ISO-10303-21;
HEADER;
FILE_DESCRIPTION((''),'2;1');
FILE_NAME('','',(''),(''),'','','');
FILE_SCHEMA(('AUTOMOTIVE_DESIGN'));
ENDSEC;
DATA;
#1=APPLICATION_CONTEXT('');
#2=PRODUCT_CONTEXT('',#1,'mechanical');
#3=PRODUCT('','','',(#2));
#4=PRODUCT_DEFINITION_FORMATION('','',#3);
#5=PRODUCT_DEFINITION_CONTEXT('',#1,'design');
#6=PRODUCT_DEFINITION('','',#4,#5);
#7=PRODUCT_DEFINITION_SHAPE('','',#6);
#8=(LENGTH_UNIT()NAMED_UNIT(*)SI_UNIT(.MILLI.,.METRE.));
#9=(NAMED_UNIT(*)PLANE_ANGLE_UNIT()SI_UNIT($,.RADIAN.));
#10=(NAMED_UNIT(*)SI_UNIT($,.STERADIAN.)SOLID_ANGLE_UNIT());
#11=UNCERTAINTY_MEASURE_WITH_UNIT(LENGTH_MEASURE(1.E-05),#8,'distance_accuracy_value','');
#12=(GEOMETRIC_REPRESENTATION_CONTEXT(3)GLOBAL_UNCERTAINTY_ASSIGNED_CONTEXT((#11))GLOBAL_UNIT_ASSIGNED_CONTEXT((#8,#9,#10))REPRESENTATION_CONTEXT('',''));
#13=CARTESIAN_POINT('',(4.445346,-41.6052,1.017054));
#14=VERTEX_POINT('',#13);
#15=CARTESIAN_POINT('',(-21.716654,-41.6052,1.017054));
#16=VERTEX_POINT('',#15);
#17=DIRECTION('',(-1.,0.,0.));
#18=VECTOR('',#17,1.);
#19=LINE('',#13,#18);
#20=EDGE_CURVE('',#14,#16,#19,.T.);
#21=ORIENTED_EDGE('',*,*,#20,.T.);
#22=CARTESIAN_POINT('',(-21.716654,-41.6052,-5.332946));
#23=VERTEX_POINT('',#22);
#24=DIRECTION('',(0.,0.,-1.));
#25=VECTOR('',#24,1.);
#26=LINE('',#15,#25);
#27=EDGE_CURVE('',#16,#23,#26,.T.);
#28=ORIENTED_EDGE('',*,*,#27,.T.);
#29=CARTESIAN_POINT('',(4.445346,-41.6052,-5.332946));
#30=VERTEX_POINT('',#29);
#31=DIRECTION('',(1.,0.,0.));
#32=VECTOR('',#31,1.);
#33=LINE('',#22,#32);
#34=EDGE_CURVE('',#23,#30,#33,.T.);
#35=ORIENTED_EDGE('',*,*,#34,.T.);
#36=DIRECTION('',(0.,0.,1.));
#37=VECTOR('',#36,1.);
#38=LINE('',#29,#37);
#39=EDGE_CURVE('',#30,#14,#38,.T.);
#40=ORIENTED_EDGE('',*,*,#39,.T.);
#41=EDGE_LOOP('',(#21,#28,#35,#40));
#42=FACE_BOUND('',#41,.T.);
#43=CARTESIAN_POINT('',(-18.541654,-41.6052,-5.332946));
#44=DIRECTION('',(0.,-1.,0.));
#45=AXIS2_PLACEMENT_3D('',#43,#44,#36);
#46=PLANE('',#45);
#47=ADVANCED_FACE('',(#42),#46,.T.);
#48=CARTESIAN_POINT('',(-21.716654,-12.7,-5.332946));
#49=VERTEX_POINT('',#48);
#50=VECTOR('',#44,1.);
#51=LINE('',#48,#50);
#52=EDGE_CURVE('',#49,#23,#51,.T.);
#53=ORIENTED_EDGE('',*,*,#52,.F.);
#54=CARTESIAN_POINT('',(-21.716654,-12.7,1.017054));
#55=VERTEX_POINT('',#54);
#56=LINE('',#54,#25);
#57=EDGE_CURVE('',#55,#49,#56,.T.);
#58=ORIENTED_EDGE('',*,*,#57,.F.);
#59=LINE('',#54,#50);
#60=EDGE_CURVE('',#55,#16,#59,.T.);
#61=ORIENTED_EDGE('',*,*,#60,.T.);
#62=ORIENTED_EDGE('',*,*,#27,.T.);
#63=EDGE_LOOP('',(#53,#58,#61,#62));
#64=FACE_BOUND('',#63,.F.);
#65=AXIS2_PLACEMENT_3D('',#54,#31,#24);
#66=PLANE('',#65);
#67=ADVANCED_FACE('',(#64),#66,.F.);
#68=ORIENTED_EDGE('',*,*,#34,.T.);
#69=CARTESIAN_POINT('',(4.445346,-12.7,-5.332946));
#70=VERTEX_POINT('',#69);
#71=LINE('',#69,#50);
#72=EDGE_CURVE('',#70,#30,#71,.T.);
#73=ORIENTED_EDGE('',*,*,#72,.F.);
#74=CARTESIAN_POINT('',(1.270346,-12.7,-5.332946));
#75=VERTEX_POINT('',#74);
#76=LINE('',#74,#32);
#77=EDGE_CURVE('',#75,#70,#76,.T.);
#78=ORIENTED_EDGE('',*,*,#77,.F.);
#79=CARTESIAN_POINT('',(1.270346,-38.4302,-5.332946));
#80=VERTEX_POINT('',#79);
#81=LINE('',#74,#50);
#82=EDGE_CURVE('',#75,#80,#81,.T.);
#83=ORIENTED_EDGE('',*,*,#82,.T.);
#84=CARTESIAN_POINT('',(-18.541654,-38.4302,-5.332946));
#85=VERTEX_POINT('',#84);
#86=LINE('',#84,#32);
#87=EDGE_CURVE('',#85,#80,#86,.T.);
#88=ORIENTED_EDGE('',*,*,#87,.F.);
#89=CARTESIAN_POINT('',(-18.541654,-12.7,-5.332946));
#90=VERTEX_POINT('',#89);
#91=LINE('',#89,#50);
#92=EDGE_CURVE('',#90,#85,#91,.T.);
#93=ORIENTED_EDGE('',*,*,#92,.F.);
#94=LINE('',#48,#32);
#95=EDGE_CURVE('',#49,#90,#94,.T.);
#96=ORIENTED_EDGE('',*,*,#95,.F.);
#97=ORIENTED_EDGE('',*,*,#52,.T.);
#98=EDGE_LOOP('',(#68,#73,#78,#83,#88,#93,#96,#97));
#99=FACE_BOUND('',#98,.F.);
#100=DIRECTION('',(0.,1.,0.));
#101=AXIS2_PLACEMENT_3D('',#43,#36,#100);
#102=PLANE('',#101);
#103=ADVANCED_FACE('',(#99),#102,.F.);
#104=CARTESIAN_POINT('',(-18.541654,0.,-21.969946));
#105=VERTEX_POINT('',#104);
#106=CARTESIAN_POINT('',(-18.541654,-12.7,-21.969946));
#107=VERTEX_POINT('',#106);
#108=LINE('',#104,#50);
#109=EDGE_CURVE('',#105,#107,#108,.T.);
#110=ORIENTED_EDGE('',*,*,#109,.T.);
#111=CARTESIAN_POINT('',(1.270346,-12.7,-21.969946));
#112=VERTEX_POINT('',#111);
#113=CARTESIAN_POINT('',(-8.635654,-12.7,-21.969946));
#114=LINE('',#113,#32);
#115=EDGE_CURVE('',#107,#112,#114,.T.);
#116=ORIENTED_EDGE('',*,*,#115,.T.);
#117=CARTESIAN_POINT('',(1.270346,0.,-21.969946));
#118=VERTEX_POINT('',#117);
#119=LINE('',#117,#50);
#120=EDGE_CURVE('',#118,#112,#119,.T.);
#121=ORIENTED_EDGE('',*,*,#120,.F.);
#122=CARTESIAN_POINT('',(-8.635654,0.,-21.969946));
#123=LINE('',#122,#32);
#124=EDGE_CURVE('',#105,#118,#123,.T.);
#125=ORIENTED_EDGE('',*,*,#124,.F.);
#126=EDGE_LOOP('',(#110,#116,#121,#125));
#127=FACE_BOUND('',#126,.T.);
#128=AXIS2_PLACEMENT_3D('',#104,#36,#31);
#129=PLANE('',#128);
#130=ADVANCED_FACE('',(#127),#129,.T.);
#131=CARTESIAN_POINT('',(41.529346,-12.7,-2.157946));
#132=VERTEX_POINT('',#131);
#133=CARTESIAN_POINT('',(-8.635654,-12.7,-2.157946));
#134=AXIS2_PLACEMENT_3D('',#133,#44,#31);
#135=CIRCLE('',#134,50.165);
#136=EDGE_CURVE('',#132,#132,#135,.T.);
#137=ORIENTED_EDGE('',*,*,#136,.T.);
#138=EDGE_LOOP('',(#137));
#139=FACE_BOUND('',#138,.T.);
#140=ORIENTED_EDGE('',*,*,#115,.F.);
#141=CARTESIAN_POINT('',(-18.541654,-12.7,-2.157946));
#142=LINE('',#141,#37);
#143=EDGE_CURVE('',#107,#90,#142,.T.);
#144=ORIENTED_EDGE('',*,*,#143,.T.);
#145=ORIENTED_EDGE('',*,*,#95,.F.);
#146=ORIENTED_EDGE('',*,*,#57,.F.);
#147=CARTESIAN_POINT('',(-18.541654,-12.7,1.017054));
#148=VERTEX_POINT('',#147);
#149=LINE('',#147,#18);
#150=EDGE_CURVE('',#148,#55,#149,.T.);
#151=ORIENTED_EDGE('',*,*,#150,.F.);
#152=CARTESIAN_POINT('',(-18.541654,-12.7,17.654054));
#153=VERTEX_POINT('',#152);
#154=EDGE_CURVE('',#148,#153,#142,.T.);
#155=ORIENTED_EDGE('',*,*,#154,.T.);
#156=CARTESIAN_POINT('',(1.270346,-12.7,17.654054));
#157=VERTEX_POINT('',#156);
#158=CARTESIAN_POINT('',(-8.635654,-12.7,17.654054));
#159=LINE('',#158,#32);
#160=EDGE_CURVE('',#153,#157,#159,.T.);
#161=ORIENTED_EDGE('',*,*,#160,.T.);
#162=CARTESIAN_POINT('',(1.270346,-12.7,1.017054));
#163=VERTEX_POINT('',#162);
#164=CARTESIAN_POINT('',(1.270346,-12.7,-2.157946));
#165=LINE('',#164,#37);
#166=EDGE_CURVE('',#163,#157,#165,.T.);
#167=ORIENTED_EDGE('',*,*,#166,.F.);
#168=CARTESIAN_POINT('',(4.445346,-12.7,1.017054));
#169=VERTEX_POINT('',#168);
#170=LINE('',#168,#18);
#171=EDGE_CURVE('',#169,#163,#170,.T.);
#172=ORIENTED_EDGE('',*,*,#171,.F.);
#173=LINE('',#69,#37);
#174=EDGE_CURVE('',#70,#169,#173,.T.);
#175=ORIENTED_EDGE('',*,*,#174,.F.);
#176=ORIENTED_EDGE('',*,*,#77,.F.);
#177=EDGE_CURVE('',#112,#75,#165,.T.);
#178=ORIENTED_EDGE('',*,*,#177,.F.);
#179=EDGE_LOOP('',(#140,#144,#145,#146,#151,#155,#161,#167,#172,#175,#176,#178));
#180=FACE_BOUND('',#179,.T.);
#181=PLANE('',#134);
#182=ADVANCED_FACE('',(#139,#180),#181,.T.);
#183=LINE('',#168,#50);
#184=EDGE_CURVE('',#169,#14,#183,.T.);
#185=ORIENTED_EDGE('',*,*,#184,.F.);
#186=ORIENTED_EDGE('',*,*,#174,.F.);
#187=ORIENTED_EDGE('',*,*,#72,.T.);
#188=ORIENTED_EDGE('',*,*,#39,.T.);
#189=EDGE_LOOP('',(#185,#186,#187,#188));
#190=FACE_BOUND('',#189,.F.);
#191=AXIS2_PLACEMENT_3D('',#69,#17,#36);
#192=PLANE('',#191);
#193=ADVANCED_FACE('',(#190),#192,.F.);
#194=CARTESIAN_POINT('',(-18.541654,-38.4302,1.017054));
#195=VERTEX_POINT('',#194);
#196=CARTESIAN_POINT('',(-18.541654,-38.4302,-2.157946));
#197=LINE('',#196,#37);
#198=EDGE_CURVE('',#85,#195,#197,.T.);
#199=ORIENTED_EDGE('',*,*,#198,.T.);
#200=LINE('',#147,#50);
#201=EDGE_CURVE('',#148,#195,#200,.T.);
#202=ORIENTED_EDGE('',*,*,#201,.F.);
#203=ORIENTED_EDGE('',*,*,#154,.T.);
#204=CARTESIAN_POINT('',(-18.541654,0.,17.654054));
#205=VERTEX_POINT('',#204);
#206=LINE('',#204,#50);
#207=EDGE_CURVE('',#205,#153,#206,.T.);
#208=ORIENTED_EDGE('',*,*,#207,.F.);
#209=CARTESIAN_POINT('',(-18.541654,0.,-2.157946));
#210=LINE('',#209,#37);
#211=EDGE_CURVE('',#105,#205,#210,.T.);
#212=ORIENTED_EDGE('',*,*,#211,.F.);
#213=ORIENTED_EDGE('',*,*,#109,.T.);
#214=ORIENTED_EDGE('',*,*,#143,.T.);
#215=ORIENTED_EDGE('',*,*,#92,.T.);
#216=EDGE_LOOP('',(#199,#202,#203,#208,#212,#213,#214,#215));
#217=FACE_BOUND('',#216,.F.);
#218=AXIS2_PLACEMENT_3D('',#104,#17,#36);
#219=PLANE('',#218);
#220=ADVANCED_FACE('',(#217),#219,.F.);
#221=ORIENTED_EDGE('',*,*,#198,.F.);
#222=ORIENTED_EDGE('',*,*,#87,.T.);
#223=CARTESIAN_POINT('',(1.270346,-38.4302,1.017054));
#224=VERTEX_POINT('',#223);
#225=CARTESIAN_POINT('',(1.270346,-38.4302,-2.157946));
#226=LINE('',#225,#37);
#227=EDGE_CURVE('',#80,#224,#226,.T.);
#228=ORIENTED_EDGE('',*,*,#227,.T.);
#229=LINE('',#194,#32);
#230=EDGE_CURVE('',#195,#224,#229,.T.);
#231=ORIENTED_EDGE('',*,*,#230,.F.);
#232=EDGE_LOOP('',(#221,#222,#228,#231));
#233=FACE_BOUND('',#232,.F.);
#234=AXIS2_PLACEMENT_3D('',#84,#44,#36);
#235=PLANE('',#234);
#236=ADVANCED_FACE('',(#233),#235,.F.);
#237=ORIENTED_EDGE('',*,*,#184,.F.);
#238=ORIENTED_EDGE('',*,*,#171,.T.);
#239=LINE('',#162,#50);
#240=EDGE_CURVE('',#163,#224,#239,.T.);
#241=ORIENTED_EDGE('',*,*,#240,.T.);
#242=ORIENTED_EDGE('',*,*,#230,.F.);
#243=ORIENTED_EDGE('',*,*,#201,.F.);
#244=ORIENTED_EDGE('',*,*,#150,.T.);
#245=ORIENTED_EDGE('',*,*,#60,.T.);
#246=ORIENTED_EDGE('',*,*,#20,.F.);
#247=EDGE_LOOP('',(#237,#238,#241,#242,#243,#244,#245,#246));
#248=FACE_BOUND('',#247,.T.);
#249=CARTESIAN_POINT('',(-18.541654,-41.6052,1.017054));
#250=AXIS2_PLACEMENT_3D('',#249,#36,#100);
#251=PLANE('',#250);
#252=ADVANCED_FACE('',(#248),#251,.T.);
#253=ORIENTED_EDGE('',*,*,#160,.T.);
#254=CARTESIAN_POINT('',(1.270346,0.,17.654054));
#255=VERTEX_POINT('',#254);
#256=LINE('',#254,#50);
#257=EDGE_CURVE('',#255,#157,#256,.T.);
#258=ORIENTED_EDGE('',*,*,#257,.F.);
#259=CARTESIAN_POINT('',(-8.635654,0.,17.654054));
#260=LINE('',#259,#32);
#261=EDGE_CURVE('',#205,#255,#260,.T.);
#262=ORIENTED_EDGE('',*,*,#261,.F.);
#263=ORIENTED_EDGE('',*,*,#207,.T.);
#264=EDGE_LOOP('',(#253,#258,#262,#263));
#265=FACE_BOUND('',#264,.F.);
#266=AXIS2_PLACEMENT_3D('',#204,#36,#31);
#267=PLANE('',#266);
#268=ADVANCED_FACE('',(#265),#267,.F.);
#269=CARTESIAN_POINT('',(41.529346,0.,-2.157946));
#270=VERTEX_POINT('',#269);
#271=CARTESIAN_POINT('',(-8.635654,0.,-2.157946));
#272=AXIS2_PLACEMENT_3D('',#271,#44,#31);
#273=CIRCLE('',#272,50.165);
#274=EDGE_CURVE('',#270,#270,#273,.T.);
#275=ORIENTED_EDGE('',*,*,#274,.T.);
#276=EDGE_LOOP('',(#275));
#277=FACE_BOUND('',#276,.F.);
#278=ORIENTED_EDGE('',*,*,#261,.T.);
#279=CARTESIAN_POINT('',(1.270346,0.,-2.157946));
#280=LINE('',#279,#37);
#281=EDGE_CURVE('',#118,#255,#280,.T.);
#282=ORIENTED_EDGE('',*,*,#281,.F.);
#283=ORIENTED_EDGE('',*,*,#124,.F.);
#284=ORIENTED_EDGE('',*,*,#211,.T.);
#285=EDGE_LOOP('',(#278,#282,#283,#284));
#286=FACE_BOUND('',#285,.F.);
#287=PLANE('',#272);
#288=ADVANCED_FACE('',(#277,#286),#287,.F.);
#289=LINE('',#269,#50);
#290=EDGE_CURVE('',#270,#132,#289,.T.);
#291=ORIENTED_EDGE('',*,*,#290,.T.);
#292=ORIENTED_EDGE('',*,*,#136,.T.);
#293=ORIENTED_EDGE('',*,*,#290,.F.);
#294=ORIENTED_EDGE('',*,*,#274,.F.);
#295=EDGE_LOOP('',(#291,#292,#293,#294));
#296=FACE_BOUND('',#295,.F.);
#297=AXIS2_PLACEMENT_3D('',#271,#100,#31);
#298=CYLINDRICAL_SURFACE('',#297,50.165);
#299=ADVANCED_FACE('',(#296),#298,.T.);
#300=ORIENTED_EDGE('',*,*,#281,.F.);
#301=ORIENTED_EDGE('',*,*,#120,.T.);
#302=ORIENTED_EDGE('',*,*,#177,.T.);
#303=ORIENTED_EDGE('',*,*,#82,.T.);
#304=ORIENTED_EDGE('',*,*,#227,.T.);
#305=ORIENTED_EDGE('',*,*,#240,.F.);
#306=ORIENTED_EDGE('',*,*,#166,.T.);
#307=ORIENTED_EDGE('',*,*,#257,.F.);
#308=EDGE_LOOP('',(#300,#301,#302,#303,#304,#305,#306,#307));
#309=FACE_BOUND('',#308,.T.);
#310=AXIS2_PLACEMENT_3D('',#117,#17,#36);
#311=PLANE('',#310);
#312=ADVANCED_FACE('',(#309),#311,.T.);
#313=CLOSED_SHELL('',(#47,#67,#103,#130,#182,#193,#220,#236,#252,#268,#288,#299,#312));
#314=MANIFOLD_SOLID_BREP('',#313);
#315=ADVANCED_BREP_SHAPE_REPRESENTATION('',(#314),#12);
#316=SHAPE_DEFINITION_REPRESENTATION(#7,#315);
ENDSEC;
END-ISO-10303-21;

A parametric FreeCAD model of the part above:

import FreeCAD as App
import Part
import Sketcher
Q = App.Units.Quantity

doc = App.newDocument("Part")
params = doc.addObject("Spreadsheet::Sheet", "Params")
for row, (alias, value) in enumerate([
    ("sketch1_diameter", "3.95 in"),
    ("sketch1_width", "0.78 in"),
    ("sketch1_height", "1.56 in"),
    ("pad1_length", "0.5 in"),
    ("sketch2_height", "0.25 in"),
    ("sketch2_width", "0.125 in"),
    ("pad2_length", "1.138 in"),
    ("sketch3_height", "0.25 in"),
    ("sketch3_width", "0.125 in"),
    ("pad3_length", "0.78 in"),
], start=1):
    params.set(f"A{row}", alias)
    params.set(f"B{row}", "=" + value)
    params.setAlias(f"B{row}", alias)

body = doc.addObject("PartDesign::Body", "Body")

sketch1 = body.newObject("Sketcher::SketchObject", "Sketch")
sketch1.AttachmentSupport = (doc.getObject("XZ_Plane"), [""])
sketch1.MapMode = "FlatFace"
sketch1.addGeometry([
    Part.Circle(App.Vector(-9, -2, 0), App.Vector(0, 0, 1), 50),
    Part.LineSegment(App.Vector(1, -22, 0), App.Vector(-19, -22, 0)),
    Part.LineSegment(App.Vector(-19, -22, 0), App.Vector(-19, 18, 0)),
    Part.LineSegment(App.Vector(-19, 18, 0), App.Vector(1, 18, 0)),
    Part.LineSegment(App.Vector(1, 18, 0), App.Vector(1, -22, 0)),
], False)
sketch1.addConstraint([
    Sketcher.Constraint("Coincident", 1, 2, 2, 1),
    Sketcher.Constraint("Coincident", 2, 2, 3, 1),
    Sketcher.Constraint("Coincident", 3, 2, 4, 1),
    Sketcher.Constraint("Coincident", 4, 2, 1, 1),
    Sketcher.Constraint("Horizontal", 1),
    Sketcher.Constraint("Vertical", 2),
    Sketcher.Constraint("Horizontal", 3),
    Sketcher.Constraint("Vertical", 4),
    Sketcher.Constraint("Diameter", 0, Q("3.95 in")),
    Sketcher.Constraint("DistanceX", 1, 2, 1, 1, Q("0.78 in")),
    Sketcher.Constraint("DistanceY", 2, 1, 2, 2, Q("1.56 in")),
    Sketcher.Constraint("DistanceX", 1, 2, 0, 3, Q("0.39 in")),
    Sketcher.Constraint("DistanceY", 1, 2, 0, 3, Q("0.78 in")),
    Sketcher.Constraint("DistanceX", 0, 3, -1, 1, Q("8.635654 mm")),
    Sketcher.Constraint("DistanceY", 0, 3, -1, 1, Q("2.157946 mm")),
])
sketch1.setExpression("Constraints[8]", "Params.sketch1_diameter")
sketch1.setExpression("Constraints[9]", "Params.sketch1_width")
sketch1.setExpression("Constraints[10]", "Params.sketch1_height")
pad1 = body.newObject("PartDesign::Pad", "Pad")
pad1.Profile = sketch1
pad1.setExpression("Length", "Params.pad1_length")

sketch2 = body.newObject("Sketcher::SketchObject", "Sketch001")
sketch2.AttachmentSupport = (doc.getObject("XZ_Plane"), [""])
sketch2.MapMode = "FlatFace"
sketch2.AttachmentOffset = App.Placement(App.Vector(0, 0, 0.5 * 25.4), App.Rotation())
sketch2.addGeometry([
    Part.LineSegment(App.Vector(-18.5, 1, 0), App.Vector(-21.7, 1, 0)),
    Part.LineSegment(App.Vector(-21.7, 1, 0), App.Vector(-21.7, -5.3, 0)),
    Part.LineSegment(App.Vector(-21.7, -5.3, 0), App.Vector(-18.5, -5.3, 0)),
    Part.LineSegment(App.Vector(-18.5, -5.3, 0), App.Vector(-18.5, 1, 0)),
    Part.LineSegment(App.Vector(4.4, 1, 0), App.Vector(1.3, 1, 0)),
    Part.LineSegment(App.Vector(1.3, 1, 0), App.Vector(1.3, -5.3, 0)),
    Part.LineSegment(App.Vector(1.3, -5.3, 0), App.Vector(4.4, -5.3, 0)),
    Part.LineSegment(App.Vector(4.4, -5.3, 0), App.Vector(4.4, 1, 0)),
], False)
sketch2.addConstraint([
    Sketcher.Constraint("Coincident", 0, 2, 1, 1),
    Sketcher.Constraint("Coincident", 1, 2, 2, 1),
    Sketcher.Constraint("Coincident", 2, 2, 3, 1),
    Sketcher.Constraint("Coincident", 3, 2, 0, 1),
    Sketcher.Constraint("Coincident", 4, 2, 5, 1),
    Sketcher.Constraint("Coincident", 5, 2, 6, 1),
    Sketcher.Constraint("Coincident", 6, 2, 7, 1),
    Sketcher.Constraint("Coincident", 7, 2, 4, 1),
    Sketcher.Constraint("Horizontal", 0),
    Sketcher.Constraint("Vertical", 1),
    Sketcher.Constraint("Horizontal", 2),
    Sketcher.Constraint("Vertical", 3),
    Sketcher.Constraint("Horizontal", 4),
    Sketcher.Constraint("Vertical", 5),
    Sketcher.Constraint("Horizontal", 6),
    Sketcher.Constraint("Vertical", 7),
    Sketcher.Constraint("Horizontal", 3, 2, 4, 2),
    Sketcher.Constraint("Horizontal", 2, 2, 5, 2),
    Sketcher.Constraint("Equal", 2, 4),
    Sketcher.Constraint("DistanceY", 1, 2, 1, 1, Q("0.25 in")),
    Sketcher.Constraint("DistanceX", 0, 2, 0, 1, Q("0.125 in")),
    Sketcher.Constraint("DistanceX", 3, 2, 4, 2, Q("0.78 in")),
    Sketcher.Constraint("DistanceX", 0, 2, -1, 1, Q("21.716654 mm")),
    Sketcher.Constraint("DistanceY", -1, 1, 0, 2, Q("1.017054 mm")),
])
sketch2.setExpression("Constraints[19]", "Params.sketch2_height")
sketch2.setExpression("Constraints[20]", "Params.sketch2_width")
pad2 = body.newObject("PartDesign::Pad", "Pad001")
pad2.Profile = sketch2
pad2.setExpression("Length", "Params.pad2_length")

sketch3 = body.newObject("Sketcher::SketchObject", "Sketch002")
sketch3.AttachmentSupport = (doc.getObject("YZ_Plane"), [""])
sketch3.MapMode = "FlatFace"
sketch3.AttachmentOffset = App.Placement(App.Vector(0, 0, -18.541654), App.Rotation())
sketch3.addGeometry([
    Part.LineSegment(App.Vector(-41.6, 1, 0), App.Vector(-41.6, -5.3, 0)),
    Part.LineSegment(App.Vector(-41.6, -5.3, 0), App.Vector(-38.4, -5.3, 0)),
    Part.LineSegment(App.Vector(-38.4, -5.3, 0), App.Vector(-38.4, 1, 0)),
    Part.LineSegment(App.Vector(-38.4, 1, 0), App.Vector(-41.6, 1, 0)),
], False)
sketch3.addConstraint([
    Sketcher.Constraint("Coincident", 0, 2, 1, 1),
    Sketcher.Constraint("Coincident", 1, 2, 2, 1),
    Sketcher.Constraint("Coincident", 2, 2, 3, 1),
    Sketcher.Constraint("Coincident", 3, 2, 0, 1),
    Sketcher.Constraint("Vertical", 0),
    Sketcher.Constraint("Horizontal", 1),
    Sketcher.Constraint("Vertical", 2),
    Sketcher.Constraint("Horizontal", 3),
    Sketcher.Constraint("DistanceY", 0, 2, 0, 1, Q("0.25 in")),
    Sketcher.Constraint("DistanceX", 1, 1, 1, 2, Q("0.125 in")),
    Sketcher.Constraint("DistanceX", 0, 2, -1, 1, Q("1.638 in")),
    Sketcher.Constraint("DistanceY", 0, 2, -1, 1, Q("5.332946 mm")),
])
sketch3.setExpression("Constraints[8]", "Params.sketch3_height")
sketch3.setExpression("Constraints[9]", "Params.sketch3_width")
pad3 = body.newObject("PartDesign::Pad", "Pad002")
pad3.Profile = sketch3
pad3.setExpression("Length", "Params.pad3_length")

doc.recompute()
